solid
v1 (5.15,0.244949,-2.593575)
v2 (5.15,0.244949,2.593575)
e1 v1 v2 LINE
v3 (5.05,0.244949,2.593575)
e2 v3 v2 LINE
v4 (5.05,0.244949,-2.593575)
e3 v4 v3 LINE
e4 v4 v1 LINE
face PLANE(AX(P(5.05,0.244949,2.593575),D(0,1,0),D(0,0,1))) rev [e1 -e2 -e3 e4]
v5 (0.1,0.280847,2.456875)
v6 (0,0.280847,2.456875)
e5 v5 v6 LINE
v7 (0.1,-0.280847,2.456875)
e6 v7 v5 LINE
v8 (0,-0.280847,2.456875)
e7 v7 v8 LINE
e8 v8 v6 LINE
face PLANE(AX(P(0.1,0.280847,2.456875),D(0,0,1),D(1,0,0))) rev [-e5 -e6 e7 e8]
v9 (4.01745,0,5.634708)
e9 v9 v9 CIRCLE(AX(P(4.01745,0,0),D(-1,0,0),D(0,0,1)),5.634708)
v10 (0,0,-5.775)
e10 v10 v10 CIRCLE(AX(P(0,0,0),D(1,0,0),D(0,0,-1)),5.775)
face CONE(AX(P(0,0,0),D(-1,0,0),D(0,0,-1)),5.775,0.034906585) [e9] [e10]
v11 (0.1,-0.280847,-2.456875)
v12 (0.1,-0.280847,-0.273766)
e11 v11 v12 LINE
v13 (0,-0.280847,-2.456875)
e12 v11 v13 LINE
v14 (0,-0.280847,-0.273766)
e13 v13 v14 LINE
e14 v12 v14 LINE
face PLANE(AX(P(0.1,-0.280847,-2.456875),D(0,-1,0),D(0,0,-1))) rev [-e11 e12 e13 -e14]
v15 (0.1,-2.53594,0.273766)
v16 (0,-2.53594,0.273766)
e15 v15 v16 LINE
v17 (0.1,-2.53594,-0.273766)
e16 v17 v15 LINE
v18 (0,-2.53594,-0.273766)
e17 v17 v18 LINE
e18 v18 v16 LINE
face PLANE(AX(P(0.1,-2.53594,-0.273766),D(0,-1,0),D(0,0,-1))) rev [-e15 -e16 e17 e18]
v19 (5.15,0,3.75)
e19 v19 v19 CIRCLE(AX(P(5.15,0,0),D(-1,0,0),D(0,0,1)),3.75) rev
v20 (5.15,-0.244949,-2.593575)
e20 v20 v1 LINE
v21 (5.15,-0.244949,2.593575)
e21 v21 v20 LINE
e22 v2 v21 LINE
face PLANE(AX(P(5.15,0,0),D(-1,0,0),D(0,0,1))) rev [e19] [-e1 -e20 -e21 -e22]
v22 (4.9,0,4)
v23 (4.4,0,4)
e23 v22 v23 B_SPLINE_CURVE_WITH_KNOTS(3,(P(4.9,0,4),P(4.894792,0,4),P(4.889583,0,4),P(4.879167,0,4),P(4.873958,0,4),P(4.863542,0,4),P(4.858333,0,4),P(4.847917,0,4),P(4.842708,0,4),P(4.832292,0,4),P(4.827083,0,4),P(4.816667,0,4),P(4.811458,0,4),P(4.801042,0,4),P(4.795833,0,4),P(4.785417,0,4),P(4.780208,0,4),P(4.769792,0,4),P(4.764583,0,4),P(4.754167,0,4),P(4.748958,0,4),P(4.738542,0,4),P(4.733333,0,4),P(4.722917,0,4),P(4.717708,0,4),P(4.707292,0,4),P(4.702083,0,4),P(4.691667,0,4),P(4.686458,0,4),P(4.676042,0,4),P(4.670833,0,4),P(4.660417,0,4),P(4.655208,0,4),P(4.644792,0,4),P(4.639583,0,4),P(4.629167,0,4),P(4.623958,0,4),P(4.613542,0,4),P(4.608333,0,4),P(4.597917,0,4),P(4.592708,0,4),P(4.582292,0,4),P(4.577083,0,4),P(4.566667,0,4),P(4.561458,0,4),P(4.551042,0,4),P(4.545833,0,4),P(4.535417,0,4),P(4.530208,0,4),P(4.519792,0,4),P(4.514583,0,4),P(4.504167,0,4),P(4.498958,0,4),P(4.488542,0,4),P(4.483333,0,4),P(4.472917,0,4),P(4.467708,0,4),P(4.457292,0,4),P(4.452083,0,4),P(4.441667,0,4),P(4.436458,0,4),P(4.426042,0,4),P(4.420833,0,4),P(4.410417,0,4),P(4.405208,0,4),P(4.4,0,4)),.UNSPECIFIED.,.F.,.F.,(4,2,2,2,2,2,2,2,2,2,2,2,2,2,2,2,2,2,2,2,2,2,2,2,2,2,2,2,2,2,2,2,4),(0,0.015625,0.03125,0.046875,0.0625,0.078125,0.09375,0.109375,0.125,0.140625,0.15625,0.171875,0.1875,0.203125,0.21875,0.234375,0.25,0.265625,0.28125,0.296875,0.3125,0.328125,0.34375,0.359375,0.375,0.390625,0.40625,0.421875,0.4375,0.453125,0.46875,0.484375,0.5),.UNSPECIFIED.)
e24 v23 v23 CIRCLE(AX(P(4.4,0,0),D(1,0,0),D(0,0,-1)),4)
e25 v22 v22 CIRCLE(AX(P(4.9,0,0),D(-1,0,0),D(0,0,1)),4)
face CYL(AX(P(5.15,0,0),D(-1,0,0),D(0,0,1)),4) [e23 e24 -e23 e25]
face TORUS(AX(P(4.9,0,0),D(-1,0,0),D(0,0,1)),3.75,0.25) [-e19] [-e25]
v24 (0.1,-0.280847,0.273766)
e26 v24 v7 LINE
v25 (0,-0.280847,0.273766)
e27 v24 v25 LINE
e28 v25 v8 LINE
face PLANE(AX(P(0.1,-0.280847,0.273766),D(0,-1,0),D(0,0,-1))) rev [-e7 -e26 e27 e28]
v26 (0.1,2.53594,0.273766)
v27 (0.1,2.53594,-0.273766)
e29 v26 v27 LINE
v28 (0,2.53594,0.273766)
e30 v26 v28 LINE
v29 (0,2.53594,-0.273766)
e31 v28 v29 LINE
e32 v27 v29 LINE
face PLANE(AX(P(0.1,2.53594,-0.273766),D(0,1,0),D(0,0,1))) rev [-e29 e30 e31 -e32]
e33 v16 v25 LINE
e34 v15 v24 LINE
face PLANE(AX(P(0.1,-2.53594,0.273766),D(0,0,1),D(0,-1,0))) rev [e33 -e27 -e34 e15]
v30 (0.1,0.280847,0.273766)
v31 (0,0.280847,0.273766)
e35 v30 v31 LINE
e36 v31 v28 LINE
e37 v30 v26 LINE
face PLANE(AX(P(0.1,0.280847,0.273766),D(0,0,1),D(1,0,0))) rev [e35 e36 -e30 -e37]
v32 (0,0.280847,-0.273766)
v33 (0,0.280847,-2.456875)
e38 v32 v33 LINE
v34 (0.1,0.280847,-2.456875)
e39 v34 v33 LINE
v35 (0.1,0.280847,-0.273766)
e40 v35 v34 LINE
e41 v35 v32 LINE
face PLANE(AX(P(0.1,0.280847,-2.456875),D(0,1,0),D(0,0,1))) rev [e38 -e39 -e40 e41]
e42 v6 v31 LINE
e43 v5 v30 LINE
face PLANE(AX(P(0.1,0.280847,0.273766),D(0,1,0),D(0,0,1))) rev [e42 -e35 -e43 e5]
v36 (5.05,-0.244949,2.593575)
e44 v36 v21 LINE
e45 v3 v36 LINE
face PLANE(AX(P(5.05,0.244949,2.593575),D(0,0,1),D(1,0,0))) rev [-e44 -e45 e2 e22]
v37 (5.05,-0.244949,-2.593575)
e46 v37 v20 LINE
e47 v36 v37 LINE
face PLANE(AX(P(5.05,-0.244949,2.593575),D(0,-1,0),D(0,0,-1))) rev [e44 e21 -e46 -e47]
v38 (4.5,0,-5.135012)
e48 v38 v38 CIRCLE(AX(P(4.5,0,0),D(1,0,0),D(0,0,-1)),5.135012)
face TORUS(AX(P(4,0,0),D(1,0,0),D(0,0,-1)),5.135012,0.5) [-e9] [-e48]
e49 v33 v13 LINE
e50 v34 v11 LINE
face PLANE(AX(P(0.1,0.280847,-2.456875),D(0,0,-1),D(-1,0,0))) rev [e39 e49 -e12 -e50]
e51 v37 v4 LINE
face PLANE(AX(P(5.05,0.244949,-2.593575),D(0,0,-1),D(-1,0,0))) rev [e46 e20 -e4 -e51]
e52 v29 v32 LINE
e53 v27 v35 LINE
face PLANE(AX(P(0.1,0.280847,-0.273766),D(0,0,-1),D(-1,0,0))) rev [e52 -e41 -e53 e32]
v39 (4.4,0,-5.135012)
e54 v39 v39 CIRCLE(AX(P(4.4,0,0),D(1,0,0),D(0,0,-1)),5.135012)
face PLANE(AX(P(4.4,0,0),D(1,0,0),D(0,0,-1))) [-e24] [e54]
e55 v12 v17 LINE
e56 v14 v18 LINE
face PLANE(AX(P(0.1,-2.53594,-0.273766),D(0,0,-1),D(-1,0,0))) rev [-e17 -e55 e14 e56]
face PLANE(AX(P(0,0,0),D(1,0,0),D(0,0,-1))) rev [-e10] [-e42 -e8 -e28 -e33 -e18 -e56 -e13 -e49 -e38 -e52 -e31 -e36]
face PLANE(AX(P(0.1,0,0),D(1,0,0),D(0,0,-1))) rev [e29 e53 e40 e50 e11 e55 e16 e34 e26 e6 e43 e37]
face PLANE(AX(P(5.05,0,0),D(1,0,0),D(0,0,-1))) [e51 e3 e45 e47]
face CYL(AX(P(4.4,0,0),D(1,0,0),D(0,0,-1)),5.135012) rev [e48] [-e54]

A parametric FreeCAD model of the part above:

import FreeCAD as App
import Part
import Sketcher
Q = App.Units.Quantity


def edges_at(feature, points):
    """Names of the edges that pass closest to the given points."""
    edges = feature.Shape.Edges
    near = lambda p: min(range(len(edges)), key=lambda i: edges[i].distToShape(Part.Vertex(*p))[0])
    return sorted({f"Edge{near(p) + 1}" for p in points})


def add_polygon(sketch, points):
    """Adds a closed chain of lines whose ends are joined by coincident constraints."""
    first, n = sketch.GeometryCount, len(points)
    for a, b in zip(points, points[1:] + points[:1]):
        sketch.addGeometry(Part.LineSegment(App.Vector(*a, 0), App.Vector(*b, 0)), False)
    for i in range(n):
        sketch.addConstraint(Sketcher.Constraint("Coincident", first + i, 2, first + (i + 1) % n, 1))

doc = App.newDocument("Part")
body = doc.addObject("PartDesign::Body", "Body")

# Sketch on YZ plane
sketch1 = doc.addObject("Sketcher::SketchObject", "Sketch")
body.addObject(sketch1)
sketch1.AttachmentSupport = (doc.YZ_Plane, [""])
sketch1.MapMode = "FlatFace"
sketch1.addGeometry(Part.Circle(App.Vector(0, 0, 0), App.Vector(0, 0, 1), 6), False)
sketch1.addConstraint(Sketcher.Constraint("Coincident", 0, 3, -1, 1))
sketch1.addConstraint(Sketcher.Constraint("Diameter", 0, Q("11.55 mm")))
pad1 = doc.addObject("PartDesign::Pad", "Pad")
body.addObject(pad1)
pad1.Profile = sketch1
pad1.Length = 4.5
pad1.TaperAngle = -2

# Sketch on YZ plane
sketch2 = doc.addObject("Sketcher::SketchObject", "Sketch001")
body.addObject(sketch2)
sketch2.AttachmentSupport = (doc.YZ_Plane, [""])
sketch2.MapMode = "FlatFace"
sketch2.addGeometry(Part.Circle(App.Vector(0, 0, 0), App.Vector(0, 0, 1), 4), False)
sketch2.addConstraint(Sketcher.Constraint("Coincident", 0, 3, -1, 1))
sketch2.addConstraint(Sketcher.Constraint("Diameter", 0, Q("8 mm")))
pad2 = doc.addObject("PartDesign::Pad", "Pad001")
body.addObject(pad2)
pad2.Profile = sketch2
pad2.Length = 5.15
doc.recompute()

fillet = doc.addObject("PartDesign::Fillet", "Fillet")
body.addObject(fillet)
fillet.Base = (pad2, edges_at(pad2, [(4.5, 0, 5.618)]))
fillet.Radius = 0.5
doc.recompute()

fillet2 = doc.addObject("PartDesign::Fillet", "Fillet001")
body.addObject(fillet2)
fillet2.Base = (fillet, edges_at(fillet, [(5.15, 0, -4)]))
fillet2.Radius = 0.25

# Sketch on YZ plane
sketch3 = doc.addObject("Sketcher::SketchObject", "Sketch002")
body.addObject(sketch3)
sketch3.AttachmentSupport = (doc.YZ_Plane, [""])
sketch3.MapMode = "FlatFace"
sketch3.AttachmentOffset = App.Placement(App.Vector(0, 0, 4.4), App.Rotation())
sketch3.addGeometry(Part.Circle(App.Vector(0, 0, 0), App.Vector(0, 0, 1), 5.1), False)
sketch3.addGeometry(Part.Circle(App.Vector(0, 0, 0), App.Vector(0, 0, 1), 4), False)
sketch3.addConstraint(Sketcher.Constraint("Coincident", 0, 3, -1, 1))
sketch3.addConstraint(Sketcher.Constraint("Coincident", 1, 3, -1, 1))
sketch3.addConstraint(Sketcher.Constraint("Diameter", 1, Q("8 mm")))
sketch3.addConstraint(Sketcher.Constraint("Diameter", 0, Q("10.270024 mm")))
pocket1 = doc.addObject("PartDesign::Pocket", "Pocket")
body.addObject(pocket1)
pocket1.Profile = sketch3
pocket1.Length = 0.1
pocket1.Reversed = True

# Sketch on YZ plane
sketch4 = doc.addObject("Sketcher::SketchObject", "Sketch003")
body.addObject(sketch4)
sketch4.AttachmentSupport = (doc.YZ_Plane, [""])
sketch4.MapMode = "FlatFace"
add_polygon(sketch4, [(-2.5, -0.3), (-2.5, 0.3), (-0.3, 0.3), (-0.3, 2.5), (0.3, 2.5), (0.3, 0.3), (2.5, 0.3), (2.5, -0.3), (0.3, -0.3), (0.3, -2.5), (-0.3, -2.5), (-0.3, -0.3)])  # lines 0-11
sketch4.addConstraint(Sketcher.Constraint("Vertical", 0))
sketch4.addConstraint(Sketcher.Constraint("Horizontal", 1))
sketch4.addConstraint(Sketcher.Constraint("Vertical", 2))
sketch4.addConstraint(Sketcher.Constraint("Horizontal", 3))
sketch4.addConstraint(Sketcher.Constraint("Vertical", 4))
sketch4.addConstraint(Sketcher.Constraint("Horizontal", 5))
sketch4.addConstraint(Sketcher.Constraint("Vertical", 6))
sketch4.addConstraint(Sketcher.Constraint("Horizontal", 7))
sketch4.addConstraint(Sketcher.Constraint("Vertical", 8))
sketch4.addConstraint(Sketcher.Constraint("Horizontal", 9))
sketch4.addConstraint(Sketcher.Constraint("Vertical", 10))
sketch4.addConstraint(Sketcher.Constraint("Horizontal", 11))
sketch4.addConstraint(Sketcher.Constraint("Symmetric", 0, 2, 6, 2, -1, 1))
sketch4.addConstraint(Sketcher.Constraint("Symmetric", 2, 2, 8, 2, -1, 1))
sketch4.addConstraint(Sketcher.Constraint("Symmetric", 4, 2, 10, 2, -1, 1))
sketch4.addConstraint(Sketcher.Constraint("Symmetric", 1, 2, 4, 2, -2))
sketch4.addConstraint(Sketcher.Constraint("DistanceY", 2, 1, 2, 2, Q("2.183109 mm")))
sketch4.addConstraint(Sketcher.Constraint("DistanceX", 1, 1, 1, 2, Q("2.255093 mm")))
sketch4.addConstraint(Sketcher.Constraint("DistanceX", 3, 1, 3, 2, Q("0.561694 mm")))
sketch4.addConstraint(Sketcher.Constraint("DistanceY", 0, 1, 0, 2, Q("0.547533 mm")))
pocket2 = doc.addObject("PartDesign::Pocket", "Pocket001")
body.addObject(pocket2)
pocket2.Profile = sketch4
pocket2.Length = 0.1
pocket2.Reversed = True

# Sketch on YZ plane
sketch5 = doc.addObject("Sketcher::SketchObject", "Sketch004")
body.addObject(sketch5)
sketch5.AttachmentSupport = (doc.YZ_Plane, [""])
sketch5.MapMode = "FlatFace"
sketch5.AttachmentOffset = App.Placement(App.Vector(0, 0, 5.15), App.Rotation())
add_polygon(sketch5, [(0.24, 2.59), (-0.24, 2.59), (-0.24, -2.59), (0.24, -2.59)])  # lines 0-3
sketch5.addConstraint(Sketcher.Constraint("Horizontal", 0))
sketch5.addConstraint(Sketcher.Constraint("Vertical", 1))
sketch5.addConstraint(Sketcher.Constraint("Horizontal", 2))
sketch5.addConstraint(Sketcher.Constraint("Vertical", 3))
sketch5.addConstraint(Sketcher.Constraint("Symmetric", 0, 2, 2, 2, -1, 1))
sketch5.addConstraint(Sketcher.Constraint("DistanceY", 1, 2, 1, 1, Q("5.18715 mm")))
sketch5.addConstraint(Sketcher.Constraint("DistanceX", 0, 2, 0, 1, Q("0.489898 mm")))
pocket3 = doc.addObject("PartDesign::Pocket", "Pocket002")
body.addObject(pocket3)
pocket3.Profile = sketch5
pocket3.Length = 0.1

doc.recompute()
